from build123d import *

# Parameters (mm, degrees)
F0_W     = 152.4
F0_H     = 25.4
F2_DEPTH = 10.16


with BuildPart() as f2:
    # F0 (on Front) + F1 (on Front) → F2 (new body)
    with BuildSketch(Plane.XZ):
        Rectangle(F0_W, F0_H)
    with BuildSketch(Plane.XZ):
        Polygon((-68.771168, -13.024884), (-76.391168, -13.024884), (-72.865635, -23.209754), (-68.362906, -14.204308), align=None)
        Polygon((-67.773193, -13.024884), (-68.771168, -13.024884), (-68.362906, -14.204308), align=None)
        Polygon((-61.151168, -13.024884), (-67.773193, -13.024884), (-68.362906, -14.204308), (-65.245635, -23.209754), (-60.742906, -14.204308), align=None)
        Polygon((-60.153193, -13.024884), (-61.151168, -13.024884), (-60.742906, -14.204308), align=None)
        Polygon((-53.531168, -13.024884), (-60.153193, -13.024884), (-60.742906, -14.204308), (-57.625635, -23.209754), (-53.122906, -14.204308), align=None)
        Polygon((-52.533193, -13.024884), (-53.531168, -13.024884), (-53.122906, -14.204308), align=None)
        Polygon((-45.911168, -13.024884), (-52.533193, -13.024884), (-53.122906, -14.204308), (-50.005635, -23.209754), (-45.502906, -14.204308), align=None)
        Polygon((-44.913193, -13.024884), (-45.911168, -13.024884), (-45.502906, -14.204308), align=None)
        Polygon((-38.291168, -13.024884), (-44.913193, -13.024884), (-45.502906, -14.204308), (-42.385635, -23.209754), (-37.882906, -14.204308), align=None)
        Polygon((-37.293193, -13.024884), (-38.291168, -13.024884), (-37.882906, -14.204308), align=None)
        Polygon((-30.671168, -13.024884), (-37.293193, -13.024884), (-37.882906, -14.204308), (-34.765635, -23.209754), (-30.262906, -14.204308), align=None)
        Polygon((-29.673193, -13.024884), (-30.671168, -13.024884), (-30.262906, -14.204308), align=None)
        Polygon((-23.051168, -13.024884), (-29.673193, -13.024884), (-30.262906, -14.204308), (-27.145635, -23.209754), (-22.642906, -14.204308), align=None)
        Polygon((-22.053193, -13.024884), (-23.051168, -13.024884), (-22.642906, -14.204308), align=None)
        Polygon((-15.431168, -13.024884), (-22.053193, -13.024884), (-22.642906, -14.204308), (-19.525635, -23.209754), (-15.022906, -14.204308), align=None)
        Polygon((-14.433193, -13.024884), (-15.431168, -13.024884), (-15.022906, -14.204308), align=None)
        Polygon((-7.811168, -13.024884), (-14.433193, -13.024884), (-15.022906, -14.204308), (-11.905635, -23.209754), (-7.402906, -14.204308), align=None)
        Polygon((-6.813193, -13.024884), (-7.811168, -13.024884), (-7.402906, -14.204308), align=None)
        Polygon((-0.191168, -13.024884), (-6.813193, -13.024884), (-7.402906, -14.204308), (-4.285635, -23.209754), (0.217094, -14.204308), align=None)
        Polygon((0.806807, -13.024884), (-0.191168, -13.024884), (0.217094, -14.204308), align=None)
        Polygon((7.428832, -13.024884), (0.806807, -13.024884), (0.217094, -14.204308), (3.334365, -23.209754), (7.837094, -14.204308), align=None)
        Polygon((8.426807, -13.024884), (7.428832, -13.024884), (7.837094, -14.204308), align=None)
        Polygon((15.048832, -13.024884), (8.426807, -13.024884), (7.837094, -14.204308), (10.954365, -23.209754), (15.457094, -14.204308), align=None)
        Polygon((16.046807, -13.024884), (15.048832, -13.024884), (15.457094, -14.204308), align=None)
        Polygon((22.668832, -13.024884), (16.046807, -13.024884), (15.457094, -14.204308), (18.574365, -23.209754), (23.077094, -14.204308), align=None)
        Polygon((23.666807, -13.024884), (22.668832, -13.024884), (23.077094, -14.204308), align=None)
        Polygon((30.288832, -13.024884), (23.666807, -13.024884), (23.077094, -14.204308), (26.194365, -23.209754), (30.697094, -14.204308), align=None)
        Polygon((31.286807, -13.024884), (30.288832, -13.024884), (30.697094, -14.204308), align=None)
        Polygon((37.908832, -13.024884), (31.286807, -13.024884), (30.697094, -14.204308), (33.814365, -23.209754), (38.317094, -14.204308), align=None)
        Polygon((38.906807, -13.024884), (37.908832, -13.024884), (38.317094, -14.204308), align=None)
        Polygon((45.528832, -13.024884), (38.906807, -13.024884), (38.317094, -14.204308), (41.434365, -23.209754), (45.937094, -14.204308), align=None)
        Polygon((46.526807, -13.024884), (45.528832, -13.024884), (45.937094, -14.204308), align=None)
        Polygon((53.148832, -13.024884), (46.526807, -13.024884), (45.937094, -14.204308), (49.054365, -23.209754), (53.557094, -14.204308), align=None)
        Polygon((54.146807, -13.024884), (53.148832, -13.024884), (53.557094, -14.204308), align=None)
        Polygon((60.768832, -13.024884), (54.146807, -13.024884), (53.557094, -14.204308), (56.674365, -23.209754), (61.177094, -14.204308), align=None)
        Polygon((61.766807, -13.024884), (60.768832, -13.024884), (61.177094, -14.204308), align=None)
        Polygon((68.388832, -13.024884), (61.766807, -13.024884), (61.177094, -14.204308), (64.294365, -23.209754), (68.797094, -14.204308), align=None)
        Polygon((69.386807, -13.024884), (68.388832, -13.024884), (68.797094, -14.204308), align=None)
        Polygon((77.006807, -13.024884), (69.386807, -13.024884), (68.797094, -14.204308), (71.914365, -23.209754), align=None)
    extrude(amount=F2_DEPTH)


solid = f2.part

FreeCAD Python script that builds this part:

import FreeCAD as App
import Part
import Sketcher
Q = App.Units.Quantity


def add_polygon(sketch, points):
    """Adds a closed chain of lines whose ends are joined by coincident constraints."""
    first, n = sketch.GeometryCount, len(points)
    for a, b in zip(points, points[1:] + points[:1]):
        sketch.addGeometry(Part.LineSegment(App.Vector(*a, 0), App.Vector(*b, 0)), False)
    for i in range(n):
        sketch.addConstraint(Sketcher.Constraint("Coincident", first + i, 2, first + (i + 1) % n, 1))

doc = App.newDocument("Part")
params = doc.addObject("Spreadsheet::Sheet", "Params")
for row, (alias, value) in enumerate([
    ("sketch1_width", "6 in"),
    ("sketch1_height", "1 in"),
    ("pad1_length", "0.4 in"),
], start=1):
    params.set(f"A{row}", alias)
    params.set(f"B{row}", "=" + value)
    params.setAlias(f"B{row}", alias)

body = doc.addObject("PartDesign::Body", "Body")
body.AllowCompound = True

# Sketch on XZ plane
sketch1 = body.newObject("Sketcher::SketchObject", "Sketch")
sketch1.AttachmentSupport = (doc.getObject("XZ_Plane"), [""])
sketch1.MapMode = "FlatFace"
add_polygon(sketch1, [(-76, 13), (-76, -13), (76, -13), (76, 13)])  # lines 0-3
add_polygon(sketch1, [(-76, -13), (-73, -23), (-68, -14), (-65, -23), (-61, -14), (-58, -23), (-53, -14), (-50, -23), (-46, -14), (-42, -23), (-38, -14), (-35, -23), (-30, -14), (-27, -23), (-23, -14), (-20, -23), (-15, -14), (-12, -23), (-7, -14), (-4, -23), (0, -14), (3, -23), (8, -14), (11, -23), (15, -14), (19, -23), (23, -14), (26, -23), (31, -14), (34, -23), (38, -14), (41, -23), (46, -14), (49, -23), (54, -14), (57, -23), (61, -14), (64, -23), (69, -14), (72, -23), (77, -13)])  # lines 4-44
sketch1.addConstraint([
    Sketcher.Constraint("Vertical", 0),
    Sketcher.Constraint("Horizontal", 1),
    Sketcher.Constraint("Vertical", 2),
    Sketcher.Constraint("Horizontal", 3),
    Sketcher.Constraint("Horizontal", 44),
    Sketcher.Constraint("Symmetric", 0, 2, 2, 2, -1, 1),
    Sketcher.Constraint("Parallel", 4, 6),
    Sketcher.Constraint("Parallel", 5, 7),
    Sketcher.Constraint("Parallel", 6, 8),
    Sketcher.Constraint("Parallel", 7, 9),
    Sketcher.Constraint("Parallel", 8, 10),
    Sketcher.Constraint("Parallel", 9, 11),
    Sketcher.Constraint("Parallel", 10, 12),
    Sketcher.Constraint("Parallel", 11, 13),
    Sketcher.Constraint("Parallel", 12, 14),
    Sketcher.Constraint("Parallel", 13, 15),
    Sketcher.Constraint("Parallel", 14, 16),
    Sketcher.Constraint("Parallel", 15, 17),
    Sketcher.Constraint("Parallel", 16, 18),
    Sketcher.Constraint("Parallel", 17, 19),
    Sketcher.Constraint("Parallel", 18, 20),
    Sketcher.Constraint("Parallel", 19, 21),
    Sketcher.Constraint("Parallel", 20, 22),
    Sketcher.Constraint("Parallel", 21, 23),
    Sketcher.Constraint("Parallel", 22, 24),
    Sketcher.Constraint("Parallel", 23, 25),
    Sketcher.Constraint("Parallel", 24, 26),
    Sketcher.Constraint("Parallel", 25, 27),
    Sketcher.Constraint("Parallel", 26, 28),
    Sketcher.Constraint("Parallel", 27, 29),
    Sketcher.Constraint("Parallel", 28, 30),
    Sketcher.Constraint("Parallel", 29, 31),
    Sketcher.Constraint("Parallel", 30, 32),
    Sketcher.Constraint("Parallel", 31, 33),
    Sketcher.Constraint("Parallel", 32, 34),
    Sketcher.Constraint("Parallel", 33, 35),
    Sketcher.Constraint("Parallel", 34, 36),
    Sketcher.Constraint("Parallel", 35, 37),
    Sketcher.Constraint("Parallel", 36, 38),
    Sketcher.Constraint("Parallel", 37, 39),
    Sketcher.Constraint("Parallel", 38, 40),
    Sketcher.Constraint("Parallel", 39, 41),
    Sketcher.Constraint("Parallel", 40, 42),
    Sketcher.Constraint("Parallel", 41, 43),
    Sketcher.Constraint("Horizontal", 4, 2, 6, 2),
    Sketcher.Constraint("Horizontal", 5, 2, 7, 2),
    Sketcher.Constraint("Horizontal", 6, 2, 8, 2),
    Sketcher.Constraint("Horizontal", 7, 2, 9, 2),
    Sketcher.Constraint("Horizontal", 8, 2, 10, 2),
    Sketcher.Constraint("Horizontal", 9, 2, 11, 2),
    Sketcher.Constraint("Horizontal", 10, 2, 12, 2),
    Sketcher.Constraint("Horizontal", 11, 2, 13, 2),
    Sketcher.Constraint("Horizontal", 12, 2, 14, 2),
    Sketcher.Constraint("Horizontal", 13, 2, 15, 2),
    Sketcher.Constraint("Horizontal", 14, 2, 16, 2),
    Sketcher.Constraint("Horizontal", 15, 2, 17, 2),
    Sketcher.Constraint("Horizontal", 16, 2, 18, 2),
    Sketcher.Constraint("Horizontal", 17, 2, 19, 2),
    Sketcher.Constraint("Horizontal", 18, 2, 20, 2),
    Sketcher.Constraint("Horizontal", 19, 2, 21, 2),
    Sketcher.Constraint("Horizontal", 20, 2, 22, 2),
    Sketcher.Constraint("Horizontal", 21, 2, 23, 2),
    Sketcher.Constraint("Horizontal", 22, 2, 24, 2),
    Sketcher.Constraint("Horizontal", 23, 2, 25, 2),
    Sketcher.Constraint("Horizontal", 24, 2, 26, 2),
    Sketcher.Constraint("Horizontal", 25, 2, 27, 2),
    Sketcher.Constraint("Horizontal", 26, 2, 28, 2),
    Sketcher.Constraint("Horizontal", 27, 2, 29, 2),
    Sketcher.Constraint("Horizontal", 28, 2, 30, 2),
    Sketcher.Constraint("Horizontal", 29, 2, 31, 2),
    Sketcher.Constraint("Horizontal", 30, 2, 32, 2),
    Sketcher.Constraint("Horizontal", 31, 2, 33, 2),
    Sketcher.Constraint("Horizontal", 32, 2, 34, 2),
    Sketcher.Constraint("Horizontal", 33, 2, 35, 2),
    Sketcher.Constraint("Horizontal", 34, 2, 36, 2),
    Sketcher.Constraint("Horizontal", 35, 2, 37, 2),
    Sketcher.Constraint("Horizontal", 36, 2, 38, 2),
    Sketcher.Constraint("Horizontal", 37, 2, 39, 2),
    Sketcher.Constraint("Horizontal", 38, 2, 40, 2),
    Sketcher.Constraint("Horizontal", 39, 2, 41, 2),
    Sketcher.Constraint("Horizontal", 40, 2, 42, 2),
    Sketcher.Constraint("DistanceX", 1, 1, 1, 2, Q("6 in")),
    Sketcher.Constraint("DistanceY", 0, 2, 0, 1, Q("1 in")),
    Sketcher.Constraint("DistanceX", 4, 2, 6, 2, Q("0.3 in")),
    Sketcher.Constraint("Distance", 4, 10.777799),
    Sketcher.Constraint("DistanceX", 44, 2, 44, 1, 153.397975),
    Sketcher.Constraint("DistanceX", 4, 2, 5, 2, 4.502729),
    Sketcher.Constraint("DistanceY", 5, 2, 3, 2, 26.904308),
    Sketcher.Constraint("DistanceX", 4, 2, -1, 1, 72.865635),
])
sketch1.setExpression("Constraints[126]", "Params.sketch1_width")
sketch1.setExpression("Constraints[127]", "Params.sketch1_height")
pad1 = body.newObject("PartDesign::Pad", "Pad")
pad1.Profile = sketch1
pad1.setExpression("Length", "Params.pad1_length")

doc.recompute()
